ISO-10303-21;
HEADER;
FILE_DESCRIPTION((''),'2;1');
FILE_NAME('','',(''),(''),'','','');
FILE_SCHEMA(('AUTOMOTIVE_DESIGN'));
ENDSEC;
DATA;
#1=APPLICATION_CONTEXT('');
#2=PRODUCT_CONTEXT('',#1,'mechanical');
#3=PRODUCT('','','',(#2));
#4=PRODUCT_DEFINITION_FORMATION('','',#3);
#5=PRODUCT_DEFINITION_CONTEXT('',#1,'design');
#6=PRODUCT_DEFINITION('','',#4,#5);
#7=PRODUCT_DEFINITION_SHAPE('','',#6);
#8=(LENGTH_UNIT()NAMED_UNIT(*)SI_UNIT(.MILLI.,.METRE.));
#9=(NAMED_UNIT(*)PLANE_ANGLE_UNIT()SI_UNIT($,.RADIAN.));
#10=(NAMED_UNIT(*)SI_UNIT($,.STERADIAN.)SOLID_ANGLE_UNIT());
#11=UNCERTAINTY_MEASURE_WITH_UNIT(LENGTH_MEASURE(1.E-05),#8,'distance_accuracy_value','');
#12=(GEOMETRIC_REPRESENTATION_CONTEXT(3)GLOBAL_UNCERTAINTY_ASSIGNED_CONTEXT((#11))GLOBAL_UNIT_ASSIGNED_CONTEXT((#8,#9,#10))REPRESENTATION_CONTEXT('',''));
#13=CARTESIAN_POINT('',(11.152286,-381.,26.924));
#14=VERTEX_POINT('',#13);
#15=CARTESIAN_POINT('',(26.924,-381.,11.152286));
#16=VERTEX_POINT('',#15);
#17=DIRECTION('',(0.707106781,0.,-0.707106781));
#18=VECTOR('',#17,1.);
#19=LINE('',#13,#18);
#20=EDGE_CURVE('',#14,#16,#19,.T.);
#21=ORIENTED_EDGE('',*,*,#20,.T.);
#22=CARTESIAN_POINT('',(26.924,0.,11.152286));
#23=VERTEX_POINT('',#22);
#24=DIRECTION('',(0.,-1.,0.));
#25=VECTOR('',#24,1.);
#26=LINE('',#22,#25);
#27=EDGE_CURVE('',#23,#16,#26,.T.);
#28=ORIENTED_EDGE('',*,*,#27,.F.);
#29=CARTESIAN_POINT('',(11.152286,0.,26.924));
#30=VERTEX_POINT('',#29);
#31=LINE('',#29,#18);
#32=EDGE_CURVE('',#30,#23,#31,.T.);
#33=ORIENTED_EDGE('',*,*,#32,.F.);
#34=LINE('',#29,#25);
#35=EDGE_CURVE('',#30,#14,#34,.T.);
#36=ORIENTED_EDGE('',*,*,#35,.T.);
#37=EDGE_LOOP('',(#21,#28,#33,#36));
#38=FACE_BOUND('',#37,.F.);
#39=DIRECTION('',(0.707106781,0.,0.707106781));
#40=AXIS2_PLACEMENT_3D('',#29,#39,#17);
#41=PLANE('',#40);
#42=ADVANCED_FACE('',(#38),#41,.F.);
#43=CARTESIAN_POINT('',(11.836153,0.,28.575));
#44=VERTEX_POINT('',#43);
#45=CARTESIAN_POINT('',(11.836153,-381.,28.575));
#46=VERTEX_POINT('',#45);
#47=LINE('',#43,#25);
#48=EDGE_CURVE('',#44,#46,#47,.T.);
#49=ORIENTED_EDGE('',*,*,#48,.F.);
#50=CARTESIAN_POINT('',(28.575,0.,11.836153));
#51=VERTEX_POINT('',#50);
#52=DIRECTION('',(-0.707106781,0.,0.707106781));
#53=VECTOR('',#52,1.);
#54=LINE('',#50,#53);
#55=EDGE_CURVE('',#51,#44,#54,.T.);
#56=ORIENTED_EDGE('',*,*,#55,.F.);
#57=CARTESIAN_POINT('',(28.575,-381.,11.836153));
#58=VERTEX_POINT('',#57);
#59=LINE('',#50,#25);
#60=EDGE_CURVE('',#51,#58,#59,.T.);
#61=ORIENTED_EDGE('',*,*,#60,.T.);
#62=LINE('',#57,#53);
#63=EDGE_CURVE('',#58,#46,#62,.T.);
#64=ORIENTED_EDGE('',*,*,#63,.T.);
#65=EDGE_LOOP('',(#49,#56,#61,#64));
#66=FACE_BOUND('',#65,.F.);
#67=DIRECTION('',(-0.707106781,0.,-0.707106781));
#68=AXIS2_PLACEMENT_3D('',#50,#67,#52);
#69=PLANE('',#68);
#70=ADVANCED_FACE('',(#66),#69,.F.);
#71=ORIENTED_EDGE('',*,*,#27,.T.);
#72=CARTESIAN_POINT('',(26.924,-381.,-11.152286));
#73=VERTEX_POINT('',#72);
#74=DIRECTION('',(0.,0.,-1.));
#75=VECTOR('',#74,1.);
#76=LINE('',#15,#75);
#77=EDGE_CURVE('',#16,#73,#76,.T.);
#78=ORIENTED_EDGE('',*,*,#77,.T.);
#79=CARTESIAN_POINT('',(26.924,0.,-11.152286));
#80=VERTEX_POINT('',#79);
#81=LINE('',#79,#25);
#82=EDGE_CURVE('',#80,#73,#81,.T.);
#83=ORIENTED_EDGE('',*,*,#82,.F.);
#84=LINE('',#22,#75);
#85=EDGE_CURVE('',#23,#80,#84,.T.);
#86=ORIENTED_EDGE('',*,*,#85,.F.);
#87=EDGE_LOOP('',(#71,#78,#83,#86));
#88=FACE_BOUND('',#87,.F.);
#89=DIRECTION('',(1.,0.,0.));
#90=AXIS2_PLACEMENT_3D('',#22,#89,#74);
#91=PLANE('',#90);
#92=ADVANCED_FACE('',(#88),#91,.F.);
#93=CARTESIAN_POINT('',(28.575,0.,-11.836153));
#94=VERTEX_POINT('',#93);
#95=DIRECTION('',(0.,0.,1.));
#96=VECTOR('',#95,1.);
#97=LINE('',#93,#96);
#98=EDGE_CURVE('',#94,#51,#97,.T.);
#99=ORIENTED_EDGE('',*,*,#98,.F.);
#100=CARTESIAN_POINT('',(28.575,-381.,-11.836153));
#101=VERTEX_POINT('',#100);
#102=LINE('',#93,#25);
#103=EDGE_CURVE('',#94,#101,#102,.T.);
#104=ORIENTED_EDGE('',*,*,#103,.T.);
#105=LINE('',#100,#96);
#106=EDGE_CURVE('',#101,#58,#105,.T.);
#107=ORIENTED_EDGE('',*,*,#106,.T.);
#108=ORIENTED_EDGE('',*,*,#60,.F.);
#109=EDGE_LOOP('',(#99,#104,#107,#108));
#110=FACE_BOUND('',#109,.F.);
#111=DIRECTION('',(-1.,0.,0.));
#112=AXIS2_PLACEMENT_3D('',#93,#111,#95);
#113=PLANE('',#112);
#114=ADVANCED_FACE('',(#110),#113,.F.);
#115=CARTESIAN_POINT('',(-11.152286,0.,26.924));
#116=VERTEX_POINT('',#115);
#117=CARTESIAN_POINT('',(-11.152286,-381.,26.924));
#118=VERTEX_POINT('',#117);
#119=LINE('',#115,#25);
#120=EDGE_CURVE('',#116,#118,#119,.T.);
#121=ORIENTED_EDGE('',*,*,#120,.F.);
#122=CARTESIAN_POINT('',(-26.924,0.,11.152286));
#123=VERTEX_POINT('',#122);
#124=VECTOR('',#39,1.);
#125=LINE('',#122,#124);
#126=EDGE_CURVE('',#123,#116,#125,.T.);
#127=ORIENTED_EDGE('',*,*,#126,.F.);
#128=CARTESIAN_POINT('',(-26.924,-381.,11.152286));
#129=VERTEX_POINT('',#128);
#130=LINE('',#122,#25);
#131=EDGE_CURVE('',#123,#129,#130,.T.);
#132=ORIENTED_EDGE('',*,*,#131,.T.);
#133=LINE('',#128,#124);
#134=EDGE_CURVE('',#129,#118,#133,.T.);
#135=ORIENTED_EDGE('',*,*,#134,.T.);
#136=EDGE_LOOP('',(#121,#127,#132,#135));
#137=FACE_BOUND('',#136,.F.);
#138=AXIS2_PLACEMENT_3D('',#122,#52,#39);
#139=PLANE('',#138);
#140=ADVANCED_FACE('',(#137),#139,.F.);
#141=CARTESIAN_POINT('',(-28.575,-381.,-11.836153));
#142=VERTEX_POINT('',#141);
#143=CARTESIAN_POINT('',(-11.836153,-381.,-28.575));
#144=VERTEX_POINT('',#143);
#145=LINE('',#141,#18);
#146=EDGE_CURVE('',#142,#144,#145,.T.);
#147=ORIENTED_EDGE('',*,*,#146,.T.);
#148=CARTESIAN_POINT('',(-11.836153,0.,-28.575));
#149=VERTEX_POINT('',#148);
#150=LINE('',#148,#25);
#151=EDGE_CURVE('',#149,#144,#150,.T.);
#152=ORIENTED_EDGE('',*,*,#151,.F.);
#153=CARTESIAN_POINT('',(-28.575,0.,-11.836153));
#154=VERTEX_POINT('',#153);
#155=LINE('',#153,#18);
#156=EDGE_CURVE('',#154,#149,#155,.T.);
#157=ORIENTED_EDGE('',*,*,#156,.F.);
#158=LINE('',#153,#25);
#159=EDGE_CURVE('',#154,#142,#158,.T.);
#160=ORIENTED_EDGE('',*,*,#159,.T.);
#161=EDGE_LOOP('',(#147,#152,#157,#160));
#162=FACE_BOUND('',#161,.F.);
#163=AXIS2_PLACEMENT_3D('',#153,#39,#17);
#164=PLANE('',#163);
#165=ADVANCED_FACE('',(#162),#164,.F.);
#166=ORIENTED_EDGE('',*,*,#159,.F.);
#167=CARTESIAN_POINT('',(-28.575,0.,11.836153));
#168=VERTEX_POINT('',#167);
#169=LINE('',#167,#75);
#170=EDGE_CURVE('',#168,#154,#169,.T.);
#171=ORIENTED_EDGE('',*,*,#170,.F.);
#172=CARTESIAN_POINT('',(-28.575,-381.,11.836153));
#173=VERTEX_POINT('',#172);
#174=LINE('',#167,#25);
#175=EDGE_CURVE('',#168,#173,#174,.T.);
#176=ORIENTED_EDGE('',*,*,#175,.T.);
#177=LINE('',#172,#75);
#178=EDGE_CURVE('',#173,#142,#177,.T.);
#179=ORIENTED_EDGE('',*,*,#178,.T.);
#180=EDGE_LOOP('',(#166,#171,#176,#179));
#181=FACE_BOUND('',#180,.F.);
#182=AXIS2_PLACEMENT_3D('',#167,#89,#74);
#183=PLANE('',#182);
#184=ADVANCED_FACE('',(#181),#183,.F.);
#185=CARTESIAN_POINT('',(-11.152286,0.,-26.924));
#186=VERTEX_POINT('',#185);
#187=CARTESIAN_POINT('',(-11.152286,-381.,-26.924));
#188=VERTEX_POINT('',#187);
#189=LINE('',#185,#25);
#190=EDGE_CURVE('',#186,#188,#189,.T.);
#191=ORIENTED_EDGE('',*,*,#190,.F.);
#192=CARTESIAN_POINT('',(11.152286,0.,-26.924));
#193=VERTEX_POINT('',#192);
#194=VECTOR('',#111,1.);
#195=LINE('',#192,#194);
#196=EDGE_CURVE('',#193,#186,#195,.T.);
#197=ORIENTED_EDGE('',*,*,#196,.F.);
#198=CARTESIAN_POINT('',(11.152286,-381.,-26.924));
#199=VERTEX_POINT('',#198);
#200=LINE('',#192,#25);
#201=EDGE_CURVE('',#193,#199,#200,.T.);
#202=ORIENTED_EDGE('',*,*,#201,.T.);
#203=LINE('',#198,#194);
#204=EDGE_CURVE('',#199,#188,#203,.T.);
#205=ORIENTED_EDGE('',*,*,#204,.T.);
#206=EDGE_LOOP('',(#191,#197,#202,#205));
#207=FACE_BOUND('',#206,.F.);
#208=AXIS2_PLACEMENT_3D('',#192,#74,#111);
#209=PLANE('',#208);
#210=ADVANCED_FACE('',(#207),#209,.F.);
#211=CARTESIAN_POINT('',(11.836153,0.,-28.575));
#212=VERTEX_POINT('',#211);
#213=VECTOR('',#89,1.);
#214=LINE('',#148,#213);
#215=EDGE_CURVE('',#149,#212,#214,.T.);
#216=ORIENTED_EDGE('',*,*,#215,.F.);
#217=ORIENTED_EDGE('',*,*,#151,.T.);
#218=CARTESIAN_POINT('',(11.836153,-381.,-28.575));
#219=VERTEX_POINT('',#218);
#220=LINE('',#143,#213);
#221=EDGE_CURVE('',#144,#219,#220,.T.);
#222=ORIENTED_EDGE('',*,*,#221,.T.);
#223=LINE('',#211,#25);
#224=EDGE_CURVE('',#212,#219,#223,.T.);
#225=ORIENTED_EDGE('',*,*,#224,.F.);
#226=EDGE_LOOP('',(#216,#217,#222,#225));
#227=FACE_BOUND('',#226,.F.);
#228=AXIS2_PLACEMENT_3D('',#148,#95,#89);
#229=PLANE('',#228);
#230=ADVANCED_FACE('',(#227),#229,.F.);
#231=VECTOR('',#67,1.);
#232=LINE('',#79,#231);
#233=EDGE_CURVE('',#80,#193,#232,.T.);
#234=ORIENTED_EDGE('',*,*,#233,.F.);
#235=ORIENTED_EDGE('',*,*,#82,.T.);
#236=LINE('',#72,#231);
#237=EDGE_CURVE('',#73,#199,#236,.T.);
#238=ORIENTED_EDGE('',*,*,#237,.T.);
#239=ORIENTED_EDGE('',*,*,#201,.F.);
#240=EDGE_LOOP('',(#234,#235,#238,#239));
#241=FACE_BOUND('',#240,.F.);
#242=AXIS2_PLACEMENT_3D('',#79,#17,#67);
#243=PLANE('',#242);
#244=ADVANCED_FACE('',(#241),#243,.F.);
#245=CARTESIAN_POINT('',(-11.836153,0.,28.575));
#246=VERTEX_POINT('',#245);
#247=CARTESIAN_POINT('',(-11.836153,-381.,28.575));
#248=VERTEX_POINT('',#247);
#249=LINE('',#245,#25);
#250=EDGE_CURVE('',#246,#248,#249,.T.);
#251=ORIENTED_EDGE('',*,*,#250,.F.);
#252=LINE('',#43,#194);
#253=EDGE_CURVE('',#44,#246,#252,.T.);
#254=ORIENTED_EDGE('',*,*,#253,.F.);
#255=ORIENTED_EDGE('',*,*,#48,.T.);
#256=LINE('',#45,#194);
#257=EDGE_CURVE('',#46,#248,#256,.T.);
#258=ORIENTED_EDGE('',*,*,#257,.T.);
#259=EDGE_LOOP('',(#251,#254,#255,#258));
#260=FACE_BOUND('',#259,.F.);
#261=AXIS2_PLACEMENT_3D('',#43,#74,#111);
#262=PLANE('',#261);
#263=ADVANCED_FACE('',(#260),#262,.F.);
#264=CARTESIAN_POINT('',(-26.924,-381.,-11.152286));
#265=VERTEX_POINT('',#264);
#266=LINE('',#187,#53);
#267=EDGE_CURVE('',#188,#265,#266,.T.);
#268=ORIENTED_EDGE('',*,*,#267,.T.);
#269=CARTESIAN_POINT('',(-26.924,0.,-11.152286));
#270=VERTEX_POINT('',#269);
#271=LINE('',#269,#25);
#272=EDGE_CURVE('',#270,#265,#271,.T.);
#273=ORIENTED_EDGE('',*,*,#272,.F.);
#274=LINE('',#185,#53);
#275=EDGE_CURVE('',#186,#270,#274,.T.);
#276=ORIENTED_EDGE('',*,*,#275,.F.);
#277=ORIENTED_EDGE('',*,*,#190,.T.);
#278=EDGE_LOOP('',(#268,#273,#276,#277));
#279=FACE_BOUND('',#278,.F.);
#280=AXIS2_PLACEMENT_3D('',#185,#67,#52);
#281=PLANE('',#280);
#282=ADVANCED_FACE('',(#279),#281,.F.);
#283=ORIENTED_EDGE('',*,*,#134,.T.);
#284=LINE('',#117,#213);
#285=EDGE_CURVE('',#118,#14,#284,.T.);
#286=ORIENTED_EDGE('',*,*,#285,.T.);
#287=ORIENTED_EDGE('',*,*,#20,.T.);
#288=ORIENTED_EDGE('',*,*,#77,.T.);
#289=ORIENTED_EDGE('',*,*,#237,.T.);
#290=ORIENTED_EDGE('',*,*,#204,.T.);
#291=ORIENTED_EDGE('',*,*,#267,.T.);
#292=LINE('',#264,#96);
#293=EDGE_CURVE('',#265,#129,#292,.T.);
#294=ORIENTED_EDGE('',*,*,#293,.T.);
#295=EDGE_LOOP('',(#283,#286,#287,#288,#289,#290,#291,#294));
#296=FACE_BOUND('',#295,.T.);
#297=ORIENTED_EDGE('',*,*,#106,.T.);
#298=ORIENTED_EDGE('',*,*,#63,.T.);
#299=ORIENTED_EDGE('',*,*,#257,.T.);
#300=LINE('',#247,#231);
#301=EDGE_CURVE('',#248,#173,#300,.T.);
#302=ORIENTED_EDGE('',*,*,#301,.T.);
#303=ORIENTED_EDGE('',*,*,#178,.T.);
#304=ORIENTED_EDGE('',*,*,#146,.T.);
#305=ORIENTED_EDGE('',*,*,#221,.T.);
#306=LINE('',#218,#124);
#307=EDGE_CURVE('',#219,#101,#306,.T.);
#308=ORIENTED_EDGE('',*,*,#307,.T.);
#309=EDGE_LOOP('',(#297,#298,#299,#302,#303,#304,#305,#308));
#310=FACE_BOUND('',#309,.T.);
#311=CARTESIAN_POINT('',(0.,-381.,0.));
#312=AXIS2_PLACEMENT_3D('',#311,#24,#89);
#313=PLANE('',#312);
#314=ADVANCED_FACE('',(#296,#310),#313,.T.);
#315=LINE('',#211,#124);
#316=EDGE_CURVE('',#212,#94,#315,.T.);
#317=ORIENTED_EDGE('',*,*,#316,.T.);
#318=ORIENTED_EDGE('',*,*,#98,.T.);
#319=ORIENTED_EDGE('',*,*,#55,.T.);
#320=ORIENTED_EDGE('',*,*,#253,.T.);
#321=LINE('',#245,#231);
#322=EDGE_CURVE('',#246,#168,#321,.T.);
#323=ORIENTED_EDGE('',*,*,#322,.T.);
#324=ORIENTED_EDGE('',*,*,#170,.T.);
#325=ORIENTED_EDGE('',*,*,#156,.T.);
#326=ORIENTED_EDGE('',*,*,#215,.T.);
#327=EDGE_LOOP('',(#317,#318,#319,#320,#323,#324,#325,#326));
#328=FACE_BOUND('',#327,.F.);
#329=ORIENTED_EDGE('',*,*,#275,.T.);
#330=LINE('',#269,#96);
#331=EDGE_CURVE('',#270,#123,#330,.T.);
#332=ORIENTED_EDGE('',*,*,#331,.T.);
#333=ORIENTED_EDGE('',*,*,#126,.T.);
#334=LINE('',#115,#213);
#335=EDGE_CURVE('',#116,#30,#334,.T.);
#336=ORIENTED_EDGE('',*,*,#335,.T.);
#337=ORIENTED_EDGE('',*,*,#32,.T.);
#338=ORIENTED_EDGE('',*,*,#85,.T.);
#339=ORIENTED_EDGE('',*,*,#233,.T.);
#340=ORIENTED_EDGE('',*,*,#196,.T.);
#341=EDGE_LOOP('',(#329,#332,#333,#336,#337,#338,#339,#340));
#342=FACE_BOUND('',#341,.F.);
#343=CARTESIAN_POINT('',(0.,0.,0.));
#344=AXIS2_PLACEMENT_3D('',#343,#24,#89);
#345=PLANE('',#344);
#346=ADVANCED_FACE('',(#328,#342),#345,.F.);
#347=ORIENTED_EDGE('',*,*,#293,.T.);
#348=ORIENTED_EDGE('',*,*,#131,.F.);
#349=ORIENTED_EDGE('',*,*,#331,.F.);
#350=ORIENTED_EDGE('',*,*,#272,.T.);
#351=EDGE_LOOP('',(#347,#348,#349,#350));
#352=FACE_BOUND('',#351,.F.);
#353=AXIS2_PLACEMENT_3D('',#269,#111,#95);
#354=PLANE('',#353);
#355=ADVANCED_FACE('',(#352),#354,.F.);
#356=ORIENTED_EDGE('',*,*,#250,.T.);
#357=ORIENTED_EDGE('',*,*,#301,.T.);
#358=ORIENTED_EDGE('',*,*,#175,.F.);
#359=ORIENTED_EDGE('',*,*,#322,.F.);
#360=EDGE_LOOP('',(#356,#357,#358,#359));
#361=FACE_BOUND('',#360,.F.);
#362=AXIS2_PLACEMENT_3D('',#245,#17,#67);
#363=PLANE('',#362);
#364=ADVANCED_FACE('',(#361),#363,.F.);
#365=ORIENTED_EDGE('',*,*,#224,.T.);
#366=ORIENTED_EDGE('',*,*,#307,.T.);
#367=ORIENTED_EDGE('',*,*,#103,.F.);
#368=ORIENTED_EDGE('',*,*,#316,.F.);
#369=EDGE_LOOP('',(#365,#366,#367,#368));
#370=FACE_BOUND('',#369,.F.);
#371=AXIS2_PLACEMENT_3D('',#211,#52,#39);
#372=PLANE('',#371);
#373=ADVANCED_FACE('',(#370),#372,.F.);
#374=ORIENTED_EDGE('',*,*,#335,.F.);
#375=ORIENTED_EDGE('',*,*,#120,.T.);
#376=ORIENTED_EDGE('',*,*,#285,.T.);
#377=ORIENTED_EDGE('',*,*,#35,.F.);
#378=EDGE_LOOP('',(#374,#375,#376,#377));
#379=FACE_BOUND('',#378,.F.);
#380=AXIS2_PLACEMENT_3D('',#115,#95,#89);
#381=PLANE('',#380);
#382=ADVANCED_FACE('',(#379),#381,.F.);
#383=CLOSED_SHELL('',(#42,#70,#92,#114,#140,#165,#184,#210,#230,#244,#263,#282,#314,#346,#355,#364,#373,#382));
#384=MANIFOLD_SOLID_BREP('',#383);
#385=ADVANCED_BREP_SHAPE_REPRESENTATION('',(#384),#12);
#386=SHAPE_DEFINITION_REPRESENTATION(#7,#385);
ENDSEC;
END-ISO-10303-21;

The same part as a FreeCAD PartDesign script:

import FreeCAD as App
import Part
import Sketcher
Q = App.Units.Quantity

doc = App.newDocument("Part")
params = doc.addObject("Spreadsheet::Sheet", "Params")
for row, (alias, value) in enumerate([
    ("pad1_length", "15 in"),
], start=1):
    params.set(f"A{row}", alias)
    params.set(f"B{row}", "=" + value)
    params.setAlias(f"B{row}", alias)

body = doc.addObject("PartDesign::Body", "Body")

# Sketch on XZ plane
sketch1 = doc.addObject("Sketcher::SketchObject", "Sketch")
body.addObject(sketch1)
sketch1.AttachmentSupport = (doc.XZ_Plane, [""])
sketch1.MapMode = "FlatFace"
sketch1.addGeometry([
    Part.LineSegment(App.Vector(12, 29, 0), App.Vector(-12, 29, 0)),  # 0
    Part.LineSegment(App.Vector(-12, 29, 0), App.Vector(-29, 12, 0)),  # 1
    Part.LineSegment(App.Vector(-29, 12, 0), App.Vector(-29, -12, 0)),  # 2
    Part.LineSegment(App.Vector(-29, -12, 0), App.Vector(-12, -29, 0)),  # 3
    Part.LineSegment(App.Vector(-12, -29, 0), App.Vector(12, -29, 0)),  # 4
    Part.LineSegment(App.Vector(12, -29, 0), App.Vector(29, -12, 0)),  # 5
    Part.LineSegment(App.Vector(29, -12, 0), App.Vector(29, 12, 0)),  # 6
    Part.LineSegment(App.Vector(29, 12, 0), App.Vector(12, 29, 0)),  # 7
    Part.LineSegment(App.Vector(-27, -11, 0), App.Vector(-27, 11, 0)),  # 8
    Part.LineSegment(App.Vector(-27, 11, 0), App.Vector(-11, 27, 0)),  # 9
    Part.LineSegment(App.Vector(-11, 27, 0), App.Vector(11, 27, 0)),  # 10
    Part.LineSegment(App.Vector(11, 27, 0), App.Vector(27, 11, 0)),  # 11
    Part.LineSegment(App.Vector(27, 11, 0), App.Vector(27, -11, 0)),  # 12
    Part.LineSegment(App.Vector(27, -11, 0), App.Vector(11, -27, 0)),  # 13
    Part.LineSegment(App.Vector(11, -27, 0), App.Vector(-11, -27, 0)),  # 14
    Part.LineSegment(App.Vector(-11, -27, 0), App.Vector(-27, -11, 0)),  # 15
], False)
sketch1.addConstraint([
    Sketcher.Constraint("Coincident", 0, 2, 1, 1),
    Sketcher.Constraint("Coincident", 1, 2, 2, 1),
    Sketcher.Constraint("Coincident", 2, 2, 3, 1),
    Sketcher.Constraint("Coincident", 3, 2, 4, 1),
    Sketcher.Constraint("Coincident", 4, 2, 5, 1),
    Sketcher.Constraint("Coincident", 5, 2, 6, 1),
    Sketcher.Constraint("Coincident", 6, 2, 7, 1),
    Sketcher.Constraint("Coincident", 7, 2, 0, 1),
    Sketcher.Constraint("Coincident", 8, 2, 9, 1),
    Sketcher.Constraint("Coincident", 9, 2, 10, 1),
    Sketcher.Constraint("Coincident", 10, 2, 11, 1),
    Sketcher.Constraint("Coincident", 11, 2, 12, 1),
    Sketcher.Constraint("Coincident", 12, 2, 13, 1),
    Sketcher.Constraint("Coincident", 13, 2, 14, 1),
    Sketcher.Constraint("Coincident", 14, 2, 15, 1),
    Sketcher.Constraint("Coincident", 15, 2, 8, 1),
    Sketcher.Constraint("Horizontal", 0),
    Sketcher.Constraint("Vertical", 2),
    Sketcher.Constraint("Horizontal", 4),
    Sketcher.Constraint("Vertical", 6),
    Sketcher.Constraint("Vertical", 8),
    Sketcher.Constraint("Horizontal", 10),
    Sketcher.Constraint("Vertical", 12),
    Sketcher.Constraint("Horizontal", 14),
    Sketcher.Constraint("Symmetric", 0, 2, 4, 2, -1, 1),
    Sketcher.Constraint("Symmetric", 1, 2, 5, 2, -1, 1),
    Sketcher.Constraint("Symmetric", 8, 2, 12, 2, -1, 1),
    Sketcher.Constraint("Symmetric", 9, 2, 13, 2, -1, 1),
    Sketcher.Constraint("Perpendicular", 1, 3),
    Sketcher.Constraint("Perpendicular", 5, 7),
    Sketcher.Constraint("Perpendicular", 7, 9),
    Sketcher.Constraint("Perpendicular", 9, 11),
    Sketcher.Constraint("Perpendicular", 13, 15),
    Sketcher.Constraint("Horizontal", 2, 2, 5, 2),
    Sketcher.Constraint("Horizontal", 1, 2, 6, 2),
    Sketcher.Constraint("Horizontal", 8, 2, 11, 2),
    Sketcher.Constraint("Horizontal", 12, 2, 15, 2),
    Sketcher.Constraint("Vertical", 0, 2, 3, 2),
    Sketcher.Constraint("Equal", 4, 2),
    Sketcher.Constraint("Equal", 14, 8),
    Sketcher.Constraint("DistanceX", 8, 2, -1, 1, Q("1.06 in")),
    Sketcher.Constraint("DistanceY", 3, 2, 0, 2, Q("2.25 in")),
    Sketcher.Constraint("Distance", 9, Q("22.304572 mm")),
    Sketcher.Constraint("DistanceX", 0, 2, 0, 1, Q("23.672306 mm")),
])
pad1 = doc.addObject("PartDesign::Pad", "Pad")
body.addObject(pad1)
pad1.Profile = sketch1
pad1.setExpression("Length", "Params.pad1_length")

doc.recompute()
